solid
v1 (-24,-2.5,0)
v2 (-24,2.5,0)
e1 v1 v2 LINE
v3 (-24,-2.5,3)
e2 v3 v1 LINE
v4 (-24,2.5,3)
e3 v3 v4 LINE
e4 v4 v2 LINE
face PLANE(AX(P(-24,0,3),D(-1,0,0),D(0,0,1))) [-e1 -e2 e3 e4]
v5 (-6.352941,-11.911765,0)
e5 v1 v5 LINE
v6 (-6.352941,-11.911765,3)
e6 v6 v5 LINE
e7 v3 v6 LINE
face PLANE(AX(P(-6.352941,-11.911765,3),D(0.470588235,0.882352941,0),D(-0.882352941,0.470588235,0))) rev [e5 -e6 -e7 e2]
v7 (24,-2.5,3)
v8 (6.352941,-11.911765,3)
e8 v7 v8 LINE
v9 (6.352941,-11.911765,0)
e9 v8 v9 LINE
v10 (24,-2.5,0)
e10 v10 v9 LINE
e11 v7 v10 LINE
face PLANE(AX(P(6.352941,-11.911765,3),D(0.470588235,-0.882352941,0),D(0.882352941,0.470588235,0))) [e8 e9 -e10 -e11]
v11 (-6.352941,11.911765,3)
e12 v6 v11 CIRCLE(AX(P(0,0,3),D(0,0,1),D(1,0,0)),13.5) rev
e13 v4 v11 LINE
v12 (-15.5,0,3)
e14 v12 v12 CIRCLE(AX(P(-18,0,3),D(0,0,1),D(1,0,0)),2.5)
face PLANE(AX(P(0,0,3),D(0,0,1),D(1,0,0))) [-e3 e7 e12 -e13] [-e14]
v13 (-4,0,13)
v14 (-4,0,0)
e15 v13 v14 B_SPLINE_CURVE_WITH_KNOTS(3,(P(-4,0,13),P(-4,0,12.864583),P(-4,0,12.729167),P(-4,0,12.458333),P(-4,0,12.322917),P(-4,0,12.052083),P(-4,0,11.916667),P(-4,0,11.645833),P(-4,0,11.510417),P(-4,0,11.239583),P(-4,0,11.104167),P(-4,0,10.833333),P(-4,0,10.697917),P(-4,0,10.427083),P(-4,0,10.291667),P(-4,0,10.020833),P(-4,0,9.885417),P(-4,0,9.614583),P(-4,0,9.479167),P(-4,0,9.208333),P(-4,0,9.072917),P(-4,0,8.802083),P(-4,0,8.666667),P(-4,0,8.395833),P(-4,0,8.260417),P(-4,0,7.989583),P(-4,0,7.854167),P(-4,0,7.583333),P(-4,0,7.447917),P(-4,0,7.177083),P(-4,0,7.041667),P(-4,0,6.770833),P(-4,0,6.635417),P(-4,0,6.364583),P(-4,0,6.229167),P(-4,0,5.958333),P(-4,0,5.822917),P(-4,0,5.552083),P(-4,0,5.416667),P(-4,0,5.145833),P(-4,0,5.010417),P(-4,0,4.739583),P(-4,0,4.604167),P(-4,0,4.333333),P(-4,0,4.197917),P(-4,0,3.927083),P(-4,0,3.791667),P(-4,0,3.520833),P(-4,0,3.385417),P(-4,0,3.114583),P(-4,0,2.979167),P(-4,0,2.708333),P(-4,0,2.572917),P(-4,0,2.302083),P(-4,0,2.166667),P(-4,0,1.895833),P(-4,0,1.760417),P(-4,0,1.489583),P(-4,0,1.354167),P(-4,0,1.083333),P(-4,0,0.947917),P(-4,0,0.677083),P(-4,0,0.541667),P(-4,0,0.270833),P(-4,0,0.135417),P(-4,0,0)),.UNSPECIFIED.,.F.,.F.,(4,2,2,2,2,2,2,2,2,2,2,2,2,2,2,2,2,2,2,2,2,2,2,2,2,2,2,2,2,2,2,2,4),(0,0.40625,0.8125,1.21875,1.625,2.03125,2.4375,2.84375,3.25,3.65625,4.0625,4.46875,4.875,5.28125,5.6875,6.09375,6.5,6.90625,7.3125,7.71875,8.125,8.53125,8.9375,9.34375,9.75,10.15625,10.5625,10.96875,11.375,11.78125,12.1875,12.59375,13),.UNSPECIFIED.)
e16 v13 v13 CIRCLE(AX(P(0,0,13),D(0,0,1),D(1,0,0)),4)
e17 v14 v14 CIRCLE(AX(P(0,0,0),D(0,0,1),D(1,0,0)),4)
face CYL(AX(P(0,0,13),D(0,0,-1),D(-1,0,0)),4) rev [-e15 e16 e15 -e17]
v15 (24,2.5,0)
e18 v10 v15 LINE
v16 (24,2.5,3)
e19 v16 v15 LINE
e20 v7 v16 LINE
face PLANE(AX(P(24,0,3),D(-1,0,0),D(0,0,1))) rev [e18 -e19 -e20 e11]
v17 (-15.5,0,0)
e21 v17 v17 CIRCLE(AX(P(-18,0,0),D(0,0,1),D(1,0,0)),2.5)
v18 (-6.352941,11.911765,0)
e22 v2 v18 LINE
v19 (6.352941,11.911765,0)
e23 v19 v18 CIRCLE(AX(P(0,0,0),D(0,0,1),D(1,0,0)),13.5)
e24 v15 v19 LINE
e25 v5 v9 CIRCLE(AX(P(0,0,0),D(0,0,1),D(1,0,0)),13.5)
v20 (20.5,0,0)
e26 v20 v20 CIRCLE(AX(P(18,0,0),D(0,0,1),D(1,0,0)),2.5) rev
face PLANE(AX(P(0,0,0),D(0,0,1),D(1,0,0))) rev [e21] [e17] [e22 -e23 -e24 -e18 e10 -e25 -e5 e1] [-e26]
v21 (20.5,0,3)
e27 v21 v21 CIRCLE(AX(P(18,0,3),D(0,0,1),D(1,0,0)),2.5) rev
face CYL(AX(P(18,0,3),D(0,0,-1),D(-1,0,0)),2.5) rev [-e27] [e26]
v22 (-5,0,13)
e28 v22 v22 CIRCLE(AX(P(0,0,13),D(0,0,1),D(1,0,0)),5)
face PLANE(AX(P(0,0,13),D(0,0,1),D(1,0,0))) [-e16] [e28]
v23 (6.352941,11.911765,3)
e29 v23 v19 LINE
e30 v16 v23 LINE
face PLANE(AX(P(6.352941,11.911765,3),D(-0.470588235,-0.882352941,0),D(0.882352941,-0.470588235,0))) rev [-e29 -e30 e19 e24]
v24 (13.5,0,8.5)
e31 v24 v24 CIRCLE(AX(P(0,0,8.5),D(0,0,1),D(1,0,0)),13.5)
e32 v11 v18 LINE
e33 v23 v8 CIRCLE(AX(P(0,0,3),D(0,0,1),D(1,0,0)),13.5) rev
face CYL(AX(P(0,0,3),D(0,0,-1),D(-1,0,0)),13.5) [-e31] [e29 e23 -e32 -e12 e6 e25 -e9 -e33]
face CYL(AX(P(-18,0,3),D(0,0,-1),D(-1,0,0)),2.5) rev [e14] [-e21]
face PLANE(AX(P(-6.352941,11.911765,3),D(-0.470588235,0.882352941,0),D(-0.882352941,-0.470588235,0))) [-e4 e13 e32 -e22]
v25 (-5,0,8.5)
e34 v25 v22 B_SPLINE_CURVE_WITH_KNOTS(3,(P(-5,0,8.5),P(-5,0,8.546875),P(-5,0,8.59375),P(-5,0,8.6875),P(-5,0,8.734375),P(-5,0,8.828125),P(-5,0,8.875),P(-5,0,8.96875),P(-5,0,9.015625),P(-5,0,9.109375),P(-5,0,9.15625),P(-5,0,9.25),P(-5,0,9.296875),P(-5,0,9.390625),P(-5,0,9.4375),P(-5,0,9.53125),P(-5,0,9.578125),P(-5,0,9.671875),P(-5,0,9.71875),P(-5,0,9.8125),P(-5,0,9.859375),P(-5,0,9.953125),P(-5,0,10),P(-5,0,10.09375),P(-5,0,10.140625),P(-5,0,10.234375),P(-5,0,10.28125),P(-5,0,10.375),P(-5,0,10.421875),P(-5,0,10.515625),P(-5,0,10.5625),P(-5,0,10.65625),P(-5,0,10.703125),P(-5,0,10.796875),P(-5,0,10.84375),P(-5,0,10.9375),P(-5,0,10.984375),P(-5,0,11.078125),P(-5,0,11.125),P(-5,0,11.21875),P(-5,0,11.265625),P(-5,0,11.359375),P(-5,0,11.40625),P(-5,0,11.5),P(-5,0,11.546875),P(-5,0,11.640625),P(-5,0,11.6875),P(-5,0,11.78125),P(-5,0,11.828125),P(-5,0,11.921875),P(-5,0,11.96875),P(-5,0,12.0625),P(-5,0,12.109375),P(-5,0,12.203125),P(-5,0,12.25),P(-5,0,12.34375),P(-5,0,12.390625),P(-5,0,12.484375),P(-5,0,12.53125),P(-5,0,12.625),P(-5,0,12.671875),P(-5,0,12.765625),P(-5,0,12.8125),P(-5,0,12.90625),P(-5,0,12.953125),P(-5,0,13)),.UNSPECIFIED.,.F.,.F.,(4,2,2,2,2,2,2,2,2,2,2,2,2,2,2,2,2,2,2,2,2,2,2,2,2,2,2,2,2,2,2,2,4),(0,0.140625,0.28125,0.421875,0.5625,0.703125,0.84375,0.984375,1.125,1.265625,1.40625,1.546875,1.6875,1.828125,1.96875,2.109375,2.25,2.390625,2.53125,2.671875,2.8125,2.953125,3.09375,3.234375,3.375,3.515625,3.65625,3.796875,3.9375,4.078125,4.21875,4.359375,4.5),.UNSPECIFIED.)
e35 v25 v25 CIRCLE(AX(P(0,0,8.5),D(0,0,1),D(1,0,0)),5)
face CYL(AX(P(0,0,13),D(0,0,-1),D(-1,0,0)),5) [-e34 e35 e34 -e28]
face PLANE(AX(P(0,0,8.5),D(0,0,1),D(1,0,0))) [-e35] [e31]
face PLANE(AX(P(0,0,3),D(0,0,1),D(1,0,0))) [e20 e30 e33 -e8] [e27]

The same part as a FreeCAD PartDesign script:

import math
import FreeCAD as App
import Part
import Sketcher
from FreeCAD import Vector
Q = App.Units.Quantity

doc = App.newDocument("Part")
body = doc.addObject("PartDesign::Body", "Body")

sketch1 = doc.addObject("Sketcher::SketchObject", "Sketch")
body.addObject(sketch1)
sketch1.AttachmentSupport = (doc.XY_Plane, [""])
sketch1.MapMode = "FlatFace"
sketch1.addGeometry([
    Part.LineSegment(Vector(-24, 2.5, 0), Vector(-24, -2.5, 0)),
    Part.LineSegment(Vector(-24, -2.5, 0), Vector(-6.352941, -11.911765, 0)),
    Part.ArcOfCircle(Part.Circle(Vector(0, 0, 0), Vector(0, 0, 1), 13.5), math.radians(-118.072487), math.radians(-61.927513)),
    Part.LineSegment(Vector(6.352941, -11.911765, 0), Vector(24, -2.5, 0)),
    Part.LineSegment(Vector(24, -2.5, 0), Vector(24, 2.5, 0)),
    Part.LineSegment(Vector(24, 2.5, 0), Vector(6.352941, 11.911765, 0)),
    Part.ArcOfCircle(Part.Circle(Vector(0, 0, 0), Vector(0, 0, 1), 13.5), math.radians(61.927513), math.radians(118.072487)),
    Part.LineSegment(Vector(-6.352941, 11.911765, 0), Vector(-24, 2.5, 0)),
    Part.Circle(Vector(-18, 0, 0), Vector(0, 0, 1), 2.5),
    Part.Circle(Vector(0, 0, 0), Vector(0, 0, 1), 5),
    Part.Circle(Vector(18, 0, 0), Vector(0, 0, 1), 2.5),
], False)
sketch1.addConstraint([
    Sketcher.Constraint("Coincident", 0, 2, 1, 1),
    Sketcher.Constraint("Tangent", 1, 2, 2, 1),
    Sketcher.Constraint("Tangent", 2, 2, 3, 1),
    Sketcher.Constraint("Coincident", 3, 2, 4, 1),
    Sketcher.Constraint("Coincident", 4, 2, 5, 1),
    Sketcher.Constraint("Tangent", 5, 2, 6, 1),
    Sketcher.Constraint("Tangent", 6, 2, 7, 1),
    Sketcher.Constraint("Coincident", 7, 2, 0, 1),
    Sketcher.Constraint("Vertical", 0),
    Sketcher.Constraint("Vertical", 4),
    Sketcher.Constraint("Coincident", 2, 3, -1, 1),
    Sketcher.Constraint("Coincident", 6, 3, -1, 1),
    Sketcher.Constraint("Coincident", 9, 3, -1, 1),
    Sketcher.Constraint("Equal", 2, 6),
    Sketcher.Constraint("Equal", 8, 10),
    Sketcher.Constraint("Symmetric", 8, 3, 10, 3, -1, 1),
    Sketcher.Constraint("Symmetric", 0, 2, 4, 2, -1, 1),
    Sketcher.Constraint("PointOnObject", 8, 3, -1),
    Sketcher.Constraint("Parallel", 3, 7),
    Sketcher.Constraint("Horizontal", 1, 2, 2, 2),
    Sketcher.Constraint("Diameter", 8, Q("5 mm")),
    Sketcher.Constraint("Diameter", 9, Q("10 mm")),
    Sketcher.Constraint("Radius", 2, Q("13.5 mm")),
    Sketcher.Constraint("DistanceY", 0, 2, 0, 1, Q("5 mm")),
    Sketcher.Constraint("Distance", 1, Q("20 mm")),
    Sketcher.Constraint("DistanceX", 8, 3, -1, 1, Q("18 mm")),
])
pad1 = doc.addObject("PartDesign::Pad", "Pad")
body.addObject(pad1)
pad1.Profile = sketch1
pad1.Length = 3

sketch2 = doc.addObject("Sketcher::SketchObject", "Sketch001")
body.addObject(sketch2)
sketch2.AttachmentSupport = (doc.XY_Plane, [""])
sketch2.MapMode = "FlatFace"
sketch2.addGeometry([
    Part.Circle(Vector(0, 0, 0), Vector(0, 0, 1), 13.5),
    Part.Circle(Vector(0, 0, 0), Vector(0, 0, 1), 5),
], False)
sketch2.addConstraint([
    Sketcher.Constraint("Coincident", 0, 3, -1, 1),
    Sketcher.Constraint("Coincident", 1, 3, -1, 1),
    Sketcher.Constraint("Diameter", 0, Q("27 mm")),
    Sketcher.Constraint("Diameter", 1, Q("10 mm")),
])
pad2 = doc.addObject("PartDesign::Pad", "Pad001")
body.addObject(pad2)
pad2.Profile = sketch2
pad2.Length = 8.5

sketch3 = doc.addObject("Sketcher::SketchObject", "Sketch002")
body.addObject(sketch3)
sketch3.AttachmentSupport = (doc.XY_Plane, [""])
sketch3.MapMode = "FlatFace"
sketch3.addGeometry([
    Part.Circle(Vector(0, 0, 0), Vector(0, 0, 1), 5),
    Part.Circle(Vector(0, 0, 0), Vector(0, 0, 1), 4),
], False)
sketch3.addConstraint([
    Sketcher.Constraint("Coincident", 0, 3, -1, 1),
    Sketcher.Constraint("Coincident", 1, 3, -1, 1),
    Sketcher.Constraint("Diameter", 0, Q("10 mm")),
    Sketcher.Constraint("Diameter", 1, Q("8 mm")),
])
pad3 = doc.addObject("PartDesign::Pad", "Pad002")
body.addObject(pad3)
pad3.Profile = sketch3
pad3.Length = 13

doc.recompute()
